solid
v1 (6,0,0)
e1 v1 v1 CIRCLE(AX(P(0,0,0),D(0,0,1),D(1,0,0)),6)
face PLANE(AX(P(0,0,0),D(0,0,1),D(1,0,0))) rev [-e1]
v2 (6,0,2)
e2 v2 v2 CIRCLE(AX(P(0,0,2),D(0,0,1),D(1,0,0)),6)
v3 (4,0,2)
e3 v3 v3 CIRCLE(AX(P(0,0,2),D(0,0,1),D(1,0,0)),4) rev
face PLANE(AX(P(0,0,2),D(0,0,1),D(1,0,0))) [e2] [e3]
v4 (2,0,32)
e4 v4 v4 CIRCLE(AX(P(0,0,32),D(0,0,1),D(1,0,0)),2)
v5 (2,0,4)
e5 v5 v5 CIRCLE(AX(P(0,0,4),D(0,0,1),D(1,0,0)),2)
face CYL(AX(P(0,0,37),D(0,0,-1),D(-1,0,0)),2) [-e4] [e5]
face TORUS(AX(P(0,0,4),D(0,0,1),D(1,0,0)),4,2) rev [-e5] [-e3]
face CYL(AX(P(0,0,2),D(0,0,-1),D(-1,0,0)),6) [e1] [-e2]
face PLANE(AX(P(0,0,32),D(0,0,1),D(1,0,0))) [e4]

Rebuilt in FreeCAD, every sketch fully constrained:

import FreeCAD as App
import Part
import Sketcher
Q = App.Units.Quantity


def edges_at(feature, points):
    """Names of the edges that pass closest to the given points."""
    edges = feature.Shape.Edges
    near = lambda p: min(range(len(edges)), key=lambda i: edges[i].distToShape(Part.Vertex(*p))[0])
    return sorted({f"Edge{near(p) + 1}" for p in points})

doc = App.newDocument("Part")
body = doc.addObject("PartDesign::Body", "Body")

# Sketch on XY plane
sketch1 = body.newObject("Sketcher::SketchObject", "Sketch")
sketch1.AttachmentSupport = (doc.getObject("XY_Plane"), [""])
sketch1.MapMode = "FlatFace"
sketch1.addGeometry(Part.Circle(App.Vector(0, 0, 0), App.Vector(0, 0, 1), 6), False)
sketch1.addConstraint(Sketcher.Constraint("Coincident", 0, 3, -1, 1))
sketch1.addConstraint(Sketcher.Constraint("Diameter", 0, Q("12 mm")))
pad1 = body.newObject("PartDesign::Pad", "Pad")
pad1.Profile = sketch1
pad1.Length = 2

# Sketch on XY plane
sketch2 = body.newObject("Sketcher::SketchObject", "Sketch001")
sketch2.AttachmentSupport = (doc.getObject("XY_Plane"), [""])
sketch2.MapMode = "FlatFace"
sketch2.AttachmentOffset = App.Placement(App.Vector(0, 0, 2), App.Rotation())
sketch2.addGeometry(Part.Circle(App.Vector(0, 0, 0), App.Vector(0, 0, 1), 2), False)
sketch2.addConstraint(Sketcher.Constraint("Coincident", 0, 3, -1, 1))
sketch2.addConstraint(Sketcher.Constraint("Diameter", 0, Q("4 mm")))
pad2 = body.newObject("PartDesign::Pad", "Pad001")
pad2.Profile = sketch2
pad2.Length = 35
doc.recompute()

fillet = body.newObject("PartDesign::Fillet", "Fillet")
fillet.Base = (pad2, edges_at(pad2, [(-2, 0, 2)]))
fillet.Radius = 2

# Sketch on XY plane
sketch3 = body.newObject("Sketcher::SketchObject", "Sketch002")
sketch3.AttachmentSupport = (doc.getObject("XY_Plane"), [""])
sketch3.MapMode = "FlatFace"
sketch3.AttachmentOffset = App.Placement(App.Vector(0, 0, 32), App.Rotation())
sketch3.addGeometry(Part.Circle(App.Vector(0, 0, 0), App.Vector(0, 0, 1), 2), False)
sketch3.addConstraint(Sketcher.Constraint("Coincident", 0, 3, -1, 1))
sketch3.addConstraint(Sketcher.Constraint("Diameter", 0, Q("4 mm")))
pocket1 = body.newObject("PartDesign::Pocket", "Pocket")
pocket1.Profile = sketch3
pocket1.Length = 5
pocket1.Reversed = True

doc.recompute()
